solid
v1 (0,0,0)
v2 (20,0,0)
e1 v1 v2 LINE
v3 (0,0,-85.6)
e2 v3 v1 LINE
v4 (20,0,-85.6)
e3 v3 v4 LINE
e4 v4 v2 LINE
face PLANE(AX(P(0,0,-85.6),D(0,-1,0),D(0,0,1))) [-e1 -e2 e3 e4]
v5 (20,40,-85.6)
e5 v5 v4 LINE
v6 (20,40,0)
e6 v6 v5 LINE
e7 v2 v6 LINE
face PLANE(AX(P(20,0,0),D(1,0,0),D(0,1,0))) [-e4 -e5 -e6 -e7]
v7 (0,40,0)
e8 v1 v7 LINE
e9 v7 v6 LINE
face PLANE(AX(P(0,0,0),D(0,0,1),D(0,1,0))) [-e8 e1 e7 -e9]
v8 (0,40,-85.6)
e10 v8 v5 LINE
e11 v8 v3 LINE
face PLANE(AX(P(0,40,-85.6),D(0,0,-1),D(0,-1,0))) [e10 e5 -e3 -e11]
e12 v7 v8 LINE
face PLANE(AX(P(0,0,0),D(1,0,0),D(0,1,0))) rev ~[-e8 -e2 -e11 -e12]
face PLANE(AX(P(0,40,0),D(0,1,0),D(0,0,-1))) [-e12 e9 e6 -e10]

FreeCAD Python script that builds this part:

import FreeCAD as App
import Part
import Sketcher

V = App.Vector
Q = App.Units.Quantity

doc = App.newDocument("Part")
params = doc.addObject("Spreadsheet::Sheet", "Params")
for row, (alias, value) in enumerate([
    ("sketch1_width", "40 mm"),
    ("sketch1_height", "85.6 mm"),
    ("pad1_length", "20 mm"),
], start=1):
    params.set(f"A{row}", alias)
    params.set(f"B{row}", "=" + value)
    params.setAlias(f"B{row}", alias)

body = doc.addObject("PartDesign::Body", "Body")

# Sketch on YZ plane
sketch1 = body.newObject("Sketcher::SketchObject", "Sketch")
sketch1.AttachmentSupport = (doc.getObject("YZ_Plane"), [""])
sketch1.MapMode = "FlatFace"
sketch1.addGeometry([
    Part.LineSegment(V(40, 0, 0), V(0, 0, 0)),
    Part.LineSegment(V(0, 0, 0), V(0, -85.6, 0)),
    Part.LineSegment(V(0, -85.6, 0), V(40, -85.6, 0)),
    Part.LineSegment(V(40, -85.6, 0), V(40, 0, 0)),
], False)
sketch1.addConstraint([
    Sketcher.Constraint("Coincident", 0, 2, 1, 1),
    Sketcher.Constraint("Coincident", 1, 2, 2, 1),
    Sketcher.Constraint("Coincident", 2, 2, 3, 1),
    Sketcher.Constraint("Coincident", 3, 2, 0, 1),
    Sketcher.Constraint("Horizontal", 0),
    Sketcher.Constraint("Vertical", 1),
    Sketcher.Constraint("Horizontal", 2),
    Sketcher.Constraint("Vertical", 3),
    Sketcher.Constraint("Coincident", 0, 2, -1, 1),
    Sketcher.Constraint("DistanceX", 0, 2, 0, 1, Q("40 mm")),
    Sketcher.Constraint("DistanceY", 1, 2, 1, 1, Q("85.6 mm")),
])
sketch1.setExpression("Constraints[9]", "Params.sketch1_width")
sketch1.setExpression("Constraints[10]", "Params.sketch1_height")
pad1 = body.newObject("PartDesign::Pad", "Pad")
pad1.Profile = sketch1
pad1.setExpression("Length", "Params.pad1_length")

doc.recompute()
